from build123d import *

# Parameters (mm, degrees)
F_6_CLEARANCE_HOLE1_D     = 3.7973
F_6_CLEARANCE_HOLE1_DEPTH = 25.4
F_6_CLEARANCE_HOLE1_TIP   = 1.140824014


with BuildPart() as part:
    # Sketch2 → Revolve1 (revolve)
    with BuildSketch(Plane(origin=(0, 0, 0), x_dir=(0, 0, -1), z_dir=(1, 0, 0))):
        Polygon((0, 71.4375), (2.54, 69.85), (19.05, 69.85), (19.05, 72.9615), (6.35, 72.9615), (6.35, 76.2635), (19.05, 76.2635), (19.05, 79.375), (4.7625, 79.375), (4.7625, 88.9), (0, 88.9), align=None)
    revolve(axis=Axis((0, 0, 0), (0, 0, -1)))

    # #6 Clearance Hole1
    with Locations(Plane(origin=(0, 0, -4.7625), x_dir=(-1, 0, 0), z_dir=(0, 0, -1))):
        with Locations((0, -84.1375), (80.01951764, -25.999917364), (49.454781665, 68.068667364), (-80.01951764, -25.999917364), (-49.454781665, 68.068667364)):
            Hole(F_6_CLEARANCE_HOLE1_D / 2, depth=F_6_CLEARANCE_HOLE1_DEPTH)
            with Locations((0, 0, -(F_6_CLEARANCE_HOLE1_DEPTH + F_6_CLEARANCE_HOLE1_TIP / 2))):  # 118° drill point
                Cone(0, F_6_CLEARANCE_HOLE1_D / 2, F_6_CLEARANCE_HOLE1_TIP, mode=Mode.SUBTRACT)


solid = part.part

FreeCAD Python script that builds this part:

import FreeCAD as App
import Part
import Sketcher
from FreeCAD import Vector
Q = App.Units.Quantity


def add_polygon(sketch, points):
    """Adds a closed chain of lines whose ends are joined by coincident constraints."""
    first, n = sketch.GeometryCount, len(points)
    for a, b in zip(points, points[1:] + points[:1]):
        sketch.addGeometry(Part.LineSegment(App.Vector(*a, 0), App.Vector(*b, 0)), False)
    for i in range(n):
        sketch.addConstraint(Sketcher.Constraint("Coincident", first + i, 2, first + (i + 1) % n, 1))

doc = App.newDocument("Part")
body = doc.addObject("PartDesign::Body", "Body")

# Sketch on YZ plane
sketch1 = doc.addObject("Sketcher::SketchObject", "Sketch")
body.addObject(sketch1)
sketch1.AttachmentSupport = (doc.YZ_Plane, [""])
sketch1.MapMode = "FlatFace"
add_polygon(sketch1, [(71.4, 0), (69.8, -2.5), (69.8, -19.1), (73, -19.1), (73, -6.3), (76.3, -6.3), (76.3, -19.1), (79.4, -19.1), (79.4, -4.8), (88.9, -4.8), (88.9, 0)])  # lines 0-10
sketch1.addConstraint([
    Sketcher.Constraint("Vertical", 1),
    Sketcher.Constraint("Horizontal", 2),
    Sketcher.Constraint("Vertical", 3),
    Sketcher.Constraint("Horizontal", 4),
    Sketcher.Constraint("Vertical", 5),
    Sketcher.Constraint("Horizontal", 6),
    Sketcher.Constraint("Vertical", 7),
    Sketcher.Constraint("Horizontal", 8),
    Sketcher.Constraint("Vertical", 9),
    Sketcher.Constraint("Horizontal", 10),
    Sketcher.Constraint("PointOnObject", 9, 2, -1),
    Sketcher.Constraint("Horizontal", 2, 2, 5, 2),
    Sketcher.Constraint("Equal", 2, 6),
    Sketcher.Constraint("DistanceY", 3, 1, 3, 2, Q("0.5 in")),
    Sketcher.Constraint("DistanceX", 4, 1, 4, 2, Q("0.13 in")),
    Sketcher.Constraint("DistanceY", 1, 2, 1, 1, Q("0.65 in")),
    Sketcher.Constraint("DistanceY", 0, 2, -1, 1, Q("0.1 in")),
    Sketcher.Constraint("DistanceX", -1, 1, 8, 2, Q("3.5 in")),
    Sketcher.Constraint("DistanceX", 8, 1, 8, 2, Q("0.375 in")),
    Sketcher.Constraint("DistanceX", 10, 2, 10, 1, Q("0.6875 in")),
    Sketcher.Constraint("DistanceY", 7, 1, 7, 2, Q("0.5625 in")),
    Sketcher.Constraint("DistanceX", -1, 1, 0, 2, Q("2.75 in")),
])
revolution = doc.addObject("PartDesign::Revolution", "Revolution")
body.addObject(revolution)
revolution.Profile = sketch1
revolution.ReferenceAxis = (sketch1, ["V_Axis"])
revolution.Angle = 360

# Sketch on XY plane
sketch2 = doc.addObject("Sketcher::SketchObject", "Sketch001")
body.addObject(sketch2)
sketch2.AttachmentSupport = (doc.XY_Plane, [""])
sketch2.MapMode = "FlatFace"
sketch2.AttachmentOffset = App.Placement(Vector(0, 0, -0.1875 * 25.4), App.Rotation())
sketch2.addGeometry([
    Part.Circle(Vector(0, -84.1, 0), Vector(0, 0, 1), 1.9),  # 0
    Part.Circle(Vector(-80, -26, 0), Vector(0, 0, 1), 1.9),  # 1
    Part.Circle(Vector(-49.5, 68.1, 0), Vector(0, 0, 1), 1.9),  # 2
    Part.Circle(Vector(80, -26, 0), Vector(0, 0, 1), 1.9),  # 3
    Part.Circle(Vector(49.5, 68.1, 0), Vector(0, 0, 1), 1.9),  # 4
], False)
sketch2.addConstraint([
    Sketcher.Constraint("Equal", 0, 1),
    Sketcher.Constraint("Equal", 1, 2),
    Sketcher.Constraint("Equal", 2, 3),
    Sketcher.Constraint("Equal", 3, 4),
    Sketcher.Constraint("Symmetric", 1, 3, 3, 3, -2),
    Sketcher.Constraint("Symmetric", 2, 3, 4, 3, -2),
    Sketcher.Constraint("PointOnObject", 0, 3, -2),
    Sketcher.Constraint("Diameter", 0, Q("0.1495 in")),
    Sketcher.Constraint("DistanceY", 0, 3, -1, 1, Q("3.3125 in")),
    Sketcher.Constraint("DistanceX", 2, 3, 3, 3, 129.474299),
    Sketcher.Constraint("DistanceX", 2, 3, -1, 1, 49.454782),
    Sketcher.Constraint("DistanceY", 1, 3, -1, 1, 25.999917),
    Sketcher.Constraint("DistanceY", -1, 1, 2, 3, 68.068667),
])
doc.recompute()
hole = doc.addObject("PartDesign::Hole", "Hole")
body.addObject(hole)
hole.Profile = sketch2
hole.ThreadType = "None"
hole.Diameter = Q("0.1495 in")
hole.DepthType = "Dimension"
hole.Depth = Q("1 in")
hole.DrillPoint = "Angled"
hole.DrillPointAngle = 118
hole.Reversed = True

doc.recompute()
